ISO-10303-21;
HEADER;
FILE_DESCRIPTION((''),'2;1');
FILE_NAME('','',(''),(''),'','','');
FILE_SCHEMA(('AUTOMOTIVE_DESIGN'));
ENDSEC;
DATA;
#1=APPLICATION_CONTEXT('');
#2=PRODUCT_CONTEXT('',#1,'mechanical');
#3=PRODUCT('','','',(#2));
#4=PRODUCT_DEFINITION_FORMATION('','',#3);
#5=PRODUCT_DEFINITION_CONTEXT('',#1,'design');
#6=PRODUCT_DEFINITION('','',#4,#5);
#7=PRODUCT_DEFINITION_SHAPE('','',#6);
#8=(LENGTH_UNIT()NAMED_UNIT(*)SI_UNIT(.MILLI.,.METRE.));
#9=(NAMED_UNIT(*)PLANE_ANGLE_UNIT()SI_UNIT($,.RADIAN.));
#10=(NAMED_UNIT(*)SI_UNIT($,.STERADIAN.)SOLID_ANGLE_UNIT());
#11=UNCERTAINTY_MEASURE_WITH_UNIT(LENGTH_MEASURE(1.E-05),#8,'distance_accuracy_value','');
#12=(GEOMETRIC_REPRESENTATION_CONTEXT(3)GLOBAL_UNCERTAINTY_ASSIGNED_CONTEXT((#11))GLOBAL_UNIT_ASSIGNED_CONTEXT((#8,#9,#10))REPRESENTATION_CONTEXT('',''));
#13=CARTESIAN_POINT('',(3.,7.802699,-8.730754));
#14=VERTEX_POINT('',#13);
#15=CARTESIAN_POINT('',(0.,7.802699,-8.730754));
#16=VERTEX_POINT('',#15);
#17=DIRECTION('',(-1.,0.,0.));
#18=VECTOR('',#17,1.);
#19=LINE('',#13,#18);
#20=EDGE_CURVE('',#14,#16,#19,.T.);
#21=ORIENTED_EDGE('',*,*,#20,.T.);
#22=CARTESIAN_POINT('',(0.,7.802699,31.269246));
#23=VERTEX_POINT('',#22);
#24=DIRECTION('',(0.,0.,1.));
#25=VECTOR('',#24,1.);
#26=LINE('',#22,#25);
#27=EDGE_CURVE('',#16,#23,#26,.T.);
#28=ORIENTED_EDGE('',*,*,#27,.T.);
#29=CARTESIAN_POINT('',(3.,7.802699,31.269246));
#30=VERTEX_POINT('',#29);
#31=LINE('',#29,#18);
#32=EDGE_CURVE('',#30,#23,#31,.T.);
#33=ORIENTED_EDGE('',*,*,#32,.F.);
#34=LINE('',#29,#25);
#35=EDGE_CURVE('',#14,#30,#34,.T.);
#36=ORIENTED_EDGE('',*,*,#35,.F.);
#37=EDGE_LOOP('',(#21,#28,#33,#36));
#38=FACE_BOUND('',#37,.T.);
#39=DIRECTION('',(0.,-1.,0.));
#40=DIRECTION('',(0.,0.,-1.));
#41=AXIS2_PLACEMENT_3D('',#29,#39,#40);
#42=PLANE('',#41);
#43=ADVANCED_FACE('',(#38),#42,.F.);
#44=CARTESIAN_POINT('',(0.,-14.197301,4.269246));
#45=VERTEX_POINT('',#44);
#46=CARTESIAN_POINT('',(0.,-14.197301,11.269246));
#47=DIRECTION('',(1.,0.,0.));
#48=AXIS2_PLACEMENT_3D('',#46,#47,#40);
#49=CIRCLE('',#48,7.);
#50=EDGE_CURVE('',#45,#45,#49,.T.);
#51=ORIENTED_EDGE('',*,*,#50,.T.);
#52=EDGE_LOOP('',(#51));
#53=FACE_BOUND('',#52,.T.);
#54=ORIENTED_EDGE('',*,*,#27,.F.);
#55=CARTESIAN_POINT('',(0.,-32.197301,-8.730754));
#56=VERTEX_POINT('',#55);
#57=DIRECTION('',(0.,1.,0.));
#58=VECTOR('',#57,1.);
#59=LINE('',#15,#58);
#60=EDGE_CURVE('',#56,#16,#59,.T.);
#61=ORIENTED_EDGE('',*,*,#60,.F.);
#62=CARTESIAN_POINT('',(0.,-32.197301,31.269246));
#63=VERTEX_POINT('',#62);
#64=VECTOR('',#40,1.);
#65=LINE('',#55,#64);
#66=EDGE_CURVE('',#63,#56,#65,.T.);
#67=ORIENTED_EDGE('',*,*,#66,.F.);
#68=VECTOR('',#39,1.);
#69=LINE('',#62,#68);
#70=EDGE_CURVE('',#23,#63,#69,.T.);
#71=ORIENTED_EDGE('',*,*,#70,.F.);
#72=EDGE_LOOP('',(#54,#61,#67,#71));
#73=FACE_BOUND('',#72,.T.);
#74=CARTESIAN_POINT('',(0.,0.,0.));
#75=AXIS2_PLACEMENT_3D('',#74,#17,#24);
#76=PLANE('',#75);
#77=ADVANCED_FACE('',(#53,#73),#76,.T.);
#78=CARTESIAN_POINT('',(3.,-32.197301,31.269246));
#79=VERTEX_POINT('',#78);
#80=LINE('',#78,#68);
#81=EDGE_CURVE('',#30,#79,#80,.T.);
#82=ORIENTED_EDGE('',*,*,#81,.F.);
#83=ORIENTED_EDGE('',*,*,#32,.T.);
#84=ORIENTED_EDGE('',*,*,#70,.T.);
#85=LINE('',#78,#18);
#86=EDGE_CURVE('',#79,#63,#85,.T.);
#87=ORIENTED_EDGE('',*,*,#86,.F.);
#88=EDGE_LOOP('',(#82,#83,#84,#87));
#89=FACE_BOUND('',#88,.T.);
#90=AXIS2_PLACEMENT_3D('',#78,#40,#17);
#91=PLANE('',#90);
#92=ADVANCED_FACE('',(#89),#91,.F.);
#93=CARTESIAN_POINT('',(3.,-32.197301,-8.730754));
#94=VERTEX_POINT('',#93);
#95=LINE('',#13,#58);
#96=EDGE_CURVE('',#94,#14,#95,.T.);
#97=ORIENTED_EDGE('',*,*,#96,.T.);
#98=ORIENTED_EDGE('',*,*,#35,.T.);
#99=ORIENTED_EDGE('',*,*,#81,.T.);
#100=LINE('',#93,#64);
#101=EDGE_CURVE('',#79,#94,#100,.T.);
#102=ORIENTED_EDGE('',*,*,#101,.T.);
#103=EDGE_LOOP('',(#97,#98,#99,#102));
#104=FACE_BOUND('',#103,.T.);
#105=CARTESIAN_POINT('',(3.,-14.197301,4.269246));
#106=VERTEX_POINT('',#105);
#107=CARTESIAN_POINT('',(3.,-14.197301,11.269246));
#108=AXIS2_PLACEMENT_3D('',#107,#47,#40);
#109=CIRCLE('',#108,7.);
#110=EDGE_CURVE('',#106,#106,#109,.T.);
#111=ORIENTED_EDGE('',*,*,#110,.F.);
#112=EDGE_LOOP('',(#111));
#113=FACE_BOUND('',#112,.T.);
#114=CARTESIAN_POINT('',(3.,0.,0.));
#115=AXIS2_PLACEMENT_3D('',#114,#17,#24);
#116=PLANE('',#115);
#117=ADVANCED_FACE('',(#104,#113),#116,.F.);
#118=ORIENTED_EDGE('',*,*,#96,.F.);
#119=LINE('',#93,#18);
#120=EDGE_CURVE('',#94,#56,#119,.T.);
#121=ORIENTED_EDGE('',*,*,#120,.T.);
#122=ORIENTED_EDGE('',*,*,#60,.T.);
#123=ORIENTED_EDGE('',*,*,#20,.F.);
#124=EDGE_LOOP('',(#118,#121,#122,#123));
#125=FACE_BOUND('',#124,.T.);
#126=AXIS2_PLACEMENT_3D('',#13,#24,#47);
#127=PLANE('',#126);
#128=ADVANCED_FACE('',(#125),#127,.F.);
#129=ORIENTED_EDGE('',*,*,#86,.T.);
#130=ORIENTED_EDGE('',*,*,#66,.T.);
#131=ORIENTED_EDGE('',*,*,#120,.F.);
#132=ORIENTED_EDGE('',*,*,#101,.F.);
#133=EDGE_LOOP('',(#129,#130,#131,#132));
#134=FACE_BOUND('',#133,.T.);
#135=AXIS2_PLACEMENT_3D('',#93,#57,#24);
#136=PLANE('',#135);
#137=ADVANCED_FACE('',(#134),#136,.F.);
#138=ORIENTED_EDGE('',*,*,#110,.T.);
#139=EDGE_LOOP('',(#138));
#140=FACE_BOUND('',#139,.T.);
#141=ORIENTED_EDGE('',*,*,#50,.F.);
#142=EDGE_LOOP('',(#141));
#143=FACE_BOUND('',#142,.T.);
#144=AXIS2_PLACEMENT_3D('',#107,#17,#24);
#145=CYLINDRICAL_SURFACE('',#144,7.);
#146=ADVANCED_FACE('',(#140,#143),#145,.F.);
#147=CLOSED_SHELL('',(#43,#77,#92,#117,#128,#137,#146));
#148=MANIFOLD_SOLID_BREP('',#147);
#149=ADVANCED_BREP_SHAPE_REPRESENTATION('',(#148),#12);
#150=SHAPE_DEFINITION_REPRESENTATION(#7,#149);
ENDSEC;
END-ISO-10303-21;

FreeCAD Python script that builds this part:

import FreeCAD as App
import Part
import Sketcher
from FreeCAD import Vector
Q = App.Units.Quantity


def add_polygon(sketch, points):
    """Adds a closed chain of lines whose ends are joined by coincident constraints."""
    first, n = sketch.GeometryCount, len(points)
    for a, b in zip(points, points[1:] + points[:1]):
        sketch.addGeometry(Part.LineSegment(App.Vector(*a, 0), App.Vector(*b, 0)), False)
    for i in range(n):
        sketch.addConstraint(Sketcher.Constraint("Coincident", first + i, 2, first + (i + 1) % n, 1))

doc = App.newDocument("Part")
body = doc.addObject("PartDesign::Body", "Body")

sketch1 = body.newObject("Sketcher::SketchObject", "Sketch")
sketch1.AttachmentSupport = (doc.getObject("YZ_Plane"), [""])
sketch1.MapMode = "FlatFace"
add_polygon(sketch1, [(8, 31), (-32, 31), (-32, -9), (8, -9)])
sketch1.addGeometry(Part.Circle(Vector(-14, 11, 0), Vector(0, 0, 1), 7), False)
sketch1.addConstraint(Sketcher.Constraint("Horizontal", 0))
sketch1.addConstraint(Sketcher.Constraint("Vertical", 1))
sketch1.addConstraint(Sketcher.Constraint("Horizontal", 2))
sketch1.addConstraint(Sketcher.Constraint("Vertical", 3))
sketch1.addConstraint(Sketcher.Constraint("Equal", 2, 1))
sketch1.addConstraint(Sketcher.Constraint("Diameter", 4, Q("14 mm")))
sketch1.addConstraint(Sketcher.Constraint("DistanceX", 0, 2, 0, 1, Q("40 mm")))
sketch1.addConstraint(Sketcher.Constraint("DistanceX", 0, 2, 4, 3, Q("18 mm")))
sketch1.addConstraint(Sketcher.Constraint("DistanceY", 4, 3, 0, 2, Q("20 mm")))
sketch1.addConstraint(Sketcher.Constraint("DistanceX", 4, 3, -1, 1, Q("14.197301 mm")))
sketch1.addConstraint(Sketcher.Constraint("DistanceY", -1, 1, 4, 3, Q("11.269246 mm")))
pad1 = body.newObject("PartDesign::Pad", "Pad")
pad1.Profile = sketch1
pad1.Length = 3

doc.recompute()
